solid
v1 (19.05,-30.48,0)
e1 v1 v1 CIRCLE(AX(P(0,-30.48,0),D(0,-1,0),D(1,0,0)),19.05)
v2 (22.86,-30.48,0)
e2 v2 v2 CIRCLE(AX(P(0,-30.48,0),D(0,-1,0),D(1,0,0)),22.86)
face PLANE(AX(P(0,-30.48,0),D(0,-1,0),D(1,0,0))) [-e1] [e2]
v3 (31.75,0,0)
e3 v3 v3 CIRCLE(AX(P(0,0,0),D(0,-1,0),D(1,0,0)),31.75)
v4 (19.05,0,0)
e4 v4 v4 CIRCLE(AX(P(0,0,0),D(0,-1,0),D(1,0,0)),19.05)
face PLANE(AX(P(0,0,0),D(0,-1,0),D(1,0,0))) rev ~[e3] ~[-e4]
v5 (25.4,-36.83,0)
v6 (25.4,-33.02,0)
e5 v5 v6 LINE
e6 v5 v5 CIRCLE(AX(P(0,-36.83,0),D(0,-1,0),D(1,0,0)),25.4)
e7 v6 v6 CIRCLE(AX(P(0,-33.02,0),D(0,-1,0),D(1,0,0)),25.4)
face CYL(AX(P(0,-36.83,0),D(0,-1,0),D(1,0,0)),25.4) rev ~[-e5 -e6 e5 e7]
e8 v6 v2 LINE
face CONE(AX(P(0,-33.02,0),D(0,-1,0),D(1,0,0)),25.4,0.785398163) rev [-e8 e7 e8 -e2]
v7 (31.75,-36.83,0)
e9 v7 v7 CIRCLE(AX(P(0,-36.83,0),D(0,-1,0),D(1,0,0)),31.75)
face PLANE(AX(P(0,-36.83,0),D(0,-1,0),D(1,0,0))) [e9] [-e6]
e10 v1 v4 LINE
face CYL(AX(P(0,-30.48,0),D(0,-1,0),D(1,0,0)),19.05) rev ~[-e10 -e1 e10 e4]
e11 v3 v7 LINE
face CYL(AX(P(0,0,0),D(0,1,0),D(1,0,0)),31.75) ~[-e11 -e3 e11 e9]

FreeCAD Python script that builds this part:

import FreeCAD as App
import Part
import Sketcher
Q = App.Units.Quantity


def edges_at(feature, points):
    """Names of the edges that pass closest to the given points."""
    edges = feature.Shape.Edges
    near = lambda p: min(range(len(edges)), key=lambda i: edges[i].distToShape(Part.Vertex(*p))[0])
    return sorted({f"Edge{near(p) + 1}" for p in points})

doc = App.newDocument("Part")
params = doc.addObject("Spreadsheet::Sheet", "Params")
for row, (alias, value) in enumerate([
    ("sketch1_diameter", "2.5 in"),
    ("pad1_length", "1.45 in"),
    ("sketch2_diameter", "2 in"),
    ("pocket1_length", "0.25 in"),
    ("chamfer_size", "0.1 in"),
    ("sketch3_diameter", "1.5 in"),
], start=1):
    params.set(f"A{row}", alias)
    params.set(f"B{row}", "=" + value)
    params.setAlias(f"B{row}", alias)

body = doc.addObject("PartDesign::Body", "Body")

# Sketch on XZ plane
sketch1 = body.newObject("Sketcher::SketchObject", "Sketch")
sketch1.AttachmentSupport = (doc.getObject("XZ_Plane"), [""])
sketch1.MapMode = "FlatFace"
sketch1.addGeometry(Part.Circle(App.Vector(0, 0, 0), App.Vector(0, 0, 1), 31.75), False)
sketch1.addConstraint(Sketcher.Constraint("Coincident", 0, 3, -1, 1))
sketch1.addConstraint(Sketcher.Constraint("Diameter", 0, Q("2.5 in")))
sketch1.setExpression("Constraints[1]", "Params.sketch1_diameter")
pad1 = body.newObject("PartDesign::Pad", "Pad")
pad1.Profile = sketch1
pad1.setExpression("Length", "Params.pad1_length")

# Sketch on XZ plane
sketch2 = body.newObject("Sketcher::SketchObject", "Sketch001")
sketch2.AttachmentSupport = (doc.getObject("XZ_Plane"), [""])
sketch2.MapMode = "FlatFace"
sketch2.AttachmentOffset = App.Placement(App.Vector(0, 0, 1.45 * 25.4), App.Rotation())
sketch2.addGeometry(Part.Circle(App.Vector(0, 0, 0), App.Vector(0, 0, 1), 25.4), False)
sketch2.addConstraint(Sketcher.Constraint("Coincident", 0, 3, -1, 1))
sketch2.addConstraint(Sketcher.Constraint("Diameter", 0, Q("2 in")))
sketch2.setExpression("Constraints[1]", "Params.sketch2_diameter")
pocket1 = body.newObject("PartDesign::Pocket", "Pocket")
pocket1.Profile = sketch2
pocket1.setExpression("Length", "Params.pocket1_length")
doc.recompute()

chamfer = body.newObject("PartDesign::Chamfer", "Chamfer")
chamfer.Base = (pocket1, edges_at(pocket1, [(-25.4, -30.48, 0)]))
chamfer.setExpression("Size", "Params.chamfer_size")

# Sketch on XZ plane
sketch3 = body.newObject("Sketcher::SketchObject", "Sketch002")
sketch3.AttachmentSupport = (doc.getObject("XZ_Plane"), [""])
sketch3.MapMode = "FlatFace"
sketch3.AttachmentOffset = App.Placement(App.Vector(0, 0, 1.2 * 25.4), App.Rotation())
sketch3.addGeometry(Part.Circle(App.Vector(0, 0, 0), App.Vector(0, 0, 1), 19.05), False)
sketch3.addConstraint(Sketcher.Constraint("Coincident", 0, 3, -1, 1))
sketch3.addConstraint(Sketcher.Constraint("Diameter", 0, Q("1.5 in")))
sketch3.setExpression("Constraints[1]", "Params.sketch3_diameter")
pocket2 = body.newObject("PartDesign::Pocket", "Pocket001")
pocket2.Profile = sketch3
pocket2.Type = "ThroughAll"

doc.recompute()
